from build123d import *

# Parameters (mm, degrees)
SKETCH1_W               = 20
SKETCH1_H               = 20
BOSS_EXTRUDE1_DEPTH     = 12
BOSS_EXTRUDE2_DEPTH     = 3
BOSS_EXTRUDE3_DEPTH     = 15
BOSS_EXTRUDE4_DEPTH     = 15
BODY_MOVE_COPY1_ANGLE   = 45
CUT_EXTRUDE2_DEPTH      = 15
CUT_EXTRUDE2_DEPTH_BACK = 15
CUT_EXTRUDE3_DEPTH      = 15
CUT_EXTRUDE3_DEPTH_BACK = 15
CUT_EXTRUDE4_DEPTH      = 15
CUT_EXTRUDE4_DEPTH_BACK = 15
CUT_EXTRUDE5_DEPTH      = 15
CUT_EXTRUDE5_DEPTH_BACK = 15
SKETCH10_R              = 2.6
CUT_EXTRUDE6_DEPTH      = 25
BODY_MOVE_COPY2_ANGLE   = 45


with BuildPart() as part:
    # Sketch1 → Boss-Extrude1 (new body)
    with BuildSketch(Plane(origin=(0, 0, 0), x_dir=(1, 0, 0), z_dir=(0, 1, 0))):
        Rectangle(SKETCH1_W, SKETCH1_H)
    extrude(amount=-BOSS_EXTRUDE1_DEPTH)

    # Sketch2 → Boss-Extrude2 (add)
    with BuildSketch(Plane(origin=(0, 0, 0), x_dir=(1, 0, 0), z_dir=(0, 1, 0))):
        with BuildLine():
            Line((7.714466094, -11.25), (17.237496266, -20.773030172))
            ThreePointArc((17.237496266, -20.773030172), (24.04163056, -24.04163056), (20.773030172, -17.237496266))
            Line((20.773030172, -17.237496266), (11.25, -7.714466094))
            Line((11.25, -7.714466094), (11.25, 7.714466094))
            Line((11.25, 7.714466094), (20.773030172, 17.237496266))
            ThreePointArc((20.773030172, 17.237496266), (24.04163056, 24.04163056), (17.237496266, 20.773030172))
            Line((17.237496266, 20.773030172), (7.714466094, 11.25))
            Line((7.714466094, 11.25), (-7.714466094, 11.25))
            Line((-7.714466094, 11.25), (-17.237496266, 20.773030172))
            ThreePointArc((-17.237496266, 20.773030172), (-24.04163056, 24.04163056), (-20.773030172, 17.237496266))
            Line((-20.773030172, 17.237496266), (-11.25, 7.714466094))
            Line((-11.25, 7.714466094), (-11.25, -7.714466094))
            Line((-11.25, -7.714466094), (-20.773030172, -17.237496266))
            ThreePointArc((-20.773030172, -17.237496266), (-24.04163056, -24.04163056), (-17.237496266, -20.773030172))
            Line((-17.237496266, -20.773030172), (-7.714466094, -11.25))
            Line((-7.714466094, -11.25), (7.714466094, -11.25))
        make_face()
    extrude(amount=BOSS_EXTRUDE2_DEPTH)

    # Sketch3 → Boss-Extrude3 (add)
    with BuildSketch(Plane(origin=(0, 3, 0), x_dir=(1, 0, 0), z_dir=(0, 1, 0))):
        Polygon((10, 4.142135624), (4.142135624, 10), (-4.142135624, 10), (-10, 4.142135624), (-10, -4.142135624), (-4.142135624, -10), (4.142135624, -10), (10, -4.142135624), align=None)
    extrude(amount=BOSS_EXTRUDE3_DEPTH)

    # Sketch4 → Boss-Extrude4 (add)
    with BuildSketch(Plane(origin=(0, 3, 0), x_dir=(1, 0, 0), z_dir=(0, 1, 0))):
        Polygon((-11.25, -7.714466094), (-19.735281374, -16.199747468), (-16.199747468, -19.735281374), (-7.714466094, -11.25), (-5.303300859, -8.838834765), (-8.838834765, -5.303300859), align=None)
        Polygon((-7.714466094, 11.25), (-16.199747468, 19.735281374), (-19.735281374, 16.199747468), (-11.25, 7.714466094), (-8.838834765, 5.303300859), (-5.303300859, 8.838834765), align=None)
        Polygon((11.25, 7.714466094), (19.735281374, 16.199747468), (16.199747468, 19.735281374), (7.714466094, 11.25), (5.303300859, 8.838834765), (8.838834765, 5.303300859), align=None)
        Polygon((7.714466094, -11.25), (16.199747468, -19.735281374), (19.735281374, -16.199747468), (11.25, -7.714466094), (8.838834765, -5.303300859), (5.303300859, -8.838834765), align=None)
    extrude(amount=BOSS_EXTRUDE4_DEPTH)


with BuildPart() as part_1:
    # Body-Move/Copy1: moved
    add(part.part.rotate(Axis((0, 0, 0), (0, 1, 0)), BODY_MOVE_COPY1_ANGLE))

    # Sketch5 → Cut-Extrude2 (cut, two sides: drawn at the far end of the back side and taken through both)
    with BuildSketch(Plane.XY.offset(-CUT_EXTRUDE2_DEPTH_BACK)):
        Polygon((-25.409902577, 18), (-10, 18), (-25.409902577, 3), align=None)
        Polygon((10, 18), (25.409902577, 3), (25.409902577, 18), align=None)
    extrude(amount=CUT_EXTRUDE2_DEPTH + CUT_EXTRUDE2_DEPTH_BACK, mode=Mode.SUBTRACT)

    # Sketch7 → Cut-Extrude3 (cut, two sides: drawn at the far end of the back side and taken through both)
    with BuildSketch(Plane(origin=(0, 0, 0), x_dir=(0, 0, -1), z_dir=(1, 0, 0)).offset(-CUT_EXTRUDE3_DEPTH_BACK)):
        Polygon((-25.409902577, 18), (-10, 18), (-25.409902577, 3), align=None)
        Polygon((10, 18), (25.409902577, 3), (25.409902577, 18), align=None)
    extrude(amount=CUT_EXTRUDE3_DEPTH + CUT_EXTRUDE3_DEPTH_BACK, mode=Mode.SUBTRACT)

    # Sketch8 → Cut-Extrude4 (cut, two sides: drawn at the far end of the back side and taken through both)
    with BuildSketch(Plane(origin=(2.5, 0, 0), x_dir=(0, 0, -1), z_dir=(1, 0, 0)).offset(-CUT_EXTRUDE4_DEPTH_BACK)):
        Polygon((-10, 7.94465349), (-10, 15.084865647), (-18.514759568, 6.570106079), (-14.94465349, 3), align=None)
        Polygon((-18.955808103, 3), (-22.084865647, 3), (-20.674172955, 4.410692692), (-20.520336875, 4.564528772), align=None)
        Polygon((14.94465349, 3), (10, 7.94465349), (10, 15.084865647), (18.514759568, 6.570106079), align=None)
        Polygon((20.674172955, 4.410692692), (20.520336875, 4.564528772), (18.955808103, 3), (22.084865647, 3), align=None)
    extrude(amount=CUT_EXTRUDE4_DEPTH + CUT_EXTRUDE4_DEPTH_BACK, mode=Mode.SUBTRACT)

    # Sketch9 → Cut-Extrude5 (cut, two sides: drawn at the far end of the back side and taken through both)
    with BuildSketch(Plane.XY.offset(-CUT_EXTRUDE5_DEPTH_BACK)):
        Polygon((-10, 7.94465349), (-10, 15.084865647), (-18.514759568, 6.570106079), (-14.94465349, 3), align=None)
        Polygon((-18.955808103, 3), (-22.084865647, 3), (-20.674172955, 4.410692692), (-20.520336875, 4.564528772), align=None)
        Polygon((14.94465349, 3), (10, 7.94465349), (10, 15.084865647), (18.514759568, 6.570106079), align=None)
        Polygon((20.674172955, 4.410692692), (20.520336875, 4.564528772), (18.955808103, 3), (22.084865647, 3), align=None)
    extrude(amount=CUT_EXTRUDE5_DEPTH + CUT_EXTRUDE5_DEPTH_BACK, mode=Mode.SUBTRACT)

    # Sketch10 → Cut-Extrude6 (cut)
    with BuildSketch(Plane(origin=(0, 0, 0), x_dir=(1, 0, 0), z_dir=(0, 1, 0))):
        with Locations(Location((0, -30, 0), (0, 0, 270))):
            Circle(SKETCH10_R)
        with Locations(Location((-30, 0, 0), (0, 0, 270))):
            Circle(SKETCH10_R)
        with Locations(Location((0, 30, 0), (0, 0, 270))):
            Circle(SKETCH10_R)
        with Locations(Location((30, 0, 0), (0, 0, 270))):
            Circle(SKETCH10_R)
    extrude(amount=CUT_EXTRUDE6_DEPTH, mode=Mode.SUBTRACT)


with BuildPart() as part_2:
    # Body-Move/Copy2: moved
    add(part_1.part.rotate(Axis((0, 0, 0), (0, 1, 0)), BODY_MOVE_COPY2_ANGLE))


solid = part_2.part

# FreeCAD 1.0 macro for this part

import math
import FreeCAD as App
import Part
import Sketcher
from FreeCAD import Vector


def add_polygon(sketch, points):
    """Adds a closed chain of lines whose ends are joined by coincident constraints."""
    first, n = sketch.GeometryCount, len(points)
    for a, b in zip(points, points[1:] + points[:1]):
        sketch.addGeometry(Part.LineSegment(App.Vector(*a, 0), App.Vector(*b, 0)), False)
    for i in range(n):
        sketch.addConstraint(Sketcher.Constraint("Coincident", first + i, 2, first + (i + 1) % n, 1))

doc = App.newDocument("Part")
body = doc.addObject("PartDesign::Body", "Body")

sketch1 = body.newObject("Sketcher::SketchObject", "Sketch")
sketch1.AttachmentSupport = (doc.getObject("XZ_Plane"), [""])
sketch1.MapMode = "FlatFace"
add_polygon(sketch1, [(-10, -10), (-10, 10), (10, 10), (10, -10)])
sketch1.addConstraint(Sketcher.Constraint("Vertical", 0))
sketch1.addConstraint(Sketcher.Constraint("Horizontal", 1))
sketch1.addConstraint(Sketcher.Constraint("Vertical", 2))
sketch1.addConstraint(Sketcher.Constraint("Horizontal", 3))
sketch1.addConstraint(Sketcher.Constraint("Symmetric", 0, 2, 2, 2, -1, 1))
sketch1.addConstraint(Sketcher.Constraint("Equal", 3, 0))
sketch1.addConstraint(Sketcher.Constraint("DistanceX", 1, 1, 1, 2, 20.0))
pad1 = body.newObject("PartDesign::Pad", "Pad")
pad1.Profile = sketch1
pad1.Length = 12

sketch2 = body.newObject("Sketcher::SketchObject", "Sketch001")
sketch2.AttachmentSupport = (doc.getObject("XZ_Plane"), [""])
sketch2.MapMode = "FlatFace"
sketch2.addGeometry(Part.LineSegment(Vector(7.7, 11.2, 0), Vector(17.2, 20.8, 0)), False)
sketch2.addGeometry(Part.ArcOfCircle(Part.Circle(Vector(21.2, 21.2, 0), Vector(0, 0, 1), 4), math.radians(-96), math.radians(186)), False)
sketch2.addGeometry(Part.LineSegment(Vector(20.8, 17.2, 0), Vector(11.2, 7.7, 0)), False)
sketch2.addGeometry(Part.LineSegment(Vector(11.2, 7.7, 0), Vector(11.2, -7.7, 0)), False)
sketch2.addGeometry(Part.LineSegment(Vector(11.2, -7.7, 0), Vector(20.8, -17.2, 0)), False)
sketch2.addGeometry(Part.ArcOfCircle(Part.Circle(Vector(21.2, -21.2, 0), Vector(0, 0, 1), 4), math.radians(174), math.radians(456)), False)
sketch2.addGeometry(Part.LineSegment(Vector(17.2, -20.8, 0), Vector(7.7, -11.2, 0)), False)
sketch2.addGeometry(Part.LineSegment(Vector(7.7, -11.2, 0), Vector(-7.7, -11.2, 0)), False)
sketch2.addGeometry(Part.LineSegment(Vector(-7.7, -11.2, 0), Vector(-17.2, -20.8, 0)), False)
sketch2.addGeometry(Part.ArcOfCircle(Part.Circle(Vector(-21.2, -21.2, 0), Vector(0, 0, 1), 4), math.radians(84), math.radians(366)), False)
sketch2.addGeometry(Part.LineSegment(Vector(-20.8, -17.2, 0), Vector(-11.2, -7.7, 0)), False)
sketch2.addGeometry(Part.LineSegment(Vector(-11.2, -7.7, 0), Vector(-11.2, 7.7, 0)), False)
sketch2.addGeometry(Part.LineSegment(Vector(-11.2, 7.7, 0), Vector(-20.8, 17.2, 0)), False)
sketch2.addGeometry(Part.ArcOfCircle(Part.Circle(Vector(-21.2, 21.2, 0), Vector(0, 0, 1), 4), math.radians(-6), math.radians(276)), False)
sketch2.addGeometry(Part.LineSegment(Vector(-17.2, 20.8, 0), Vector(-7.7, 11.2, 0)), False)
sketch2.addGeometry(Part.LineSegment(Vector(-7.7, 11.2, 0), Vector(7.7, 11.2, 0)), False)
sketch2.addConstraint(Sketcher.Constraint("Coincident", 0, 2, 1, 2))
sketch2.addConstraint(Sketcher.Constraint("Coincident", 1, 1, 2, 1))
sketch2.addConstraint(Sketcher.Constraint("Coincident", 2, 2, 3, 1))
sketch2.addConstraint(Sketcher.Constraint("Coincident", 3, 2, 4, 1))
sketch2.addConstraint(Sketcher.Constraint("Coincident", 4, 2, 5, 2))
sketch2.addConstraint(Sketcher.Constraint("Coincident", 5, 1, 6, 1))
sketch2.addConstraint(Sketcher.Constraint("Coincident", 6, 2, 7, 1))
sketch2.addConstraint(Sketcher.Constraint("Coincident", 7, 2, 8, 1))
sketch2.addConstraint(Sketcher.Constraint("Coincident", 8, 2, 9, 2))
sketch2.addConstraint(Sketcher.Constraint("Coincident", 9, 1, 10, 1))
sketch2.addConstraint(Sketcher.Constraint("Coincident", 10, 2, 11, 1))
sketch2.addConstraint(Sketcher.Constraint("Coincident", 11, 2, 12, 1))
sketch2.addConstraint(Sketcher.Constraint("Coincident", 12, 2, 13, 2))
sketch2.addConstraint(Sketcher.Constraint("Coincident", 13, 1, 14, 1))
sketch2.addConstraint(Sketcher.Constraint("Coincident", 14, 2, 15, 1))
sketch2.addConstraint(Sketcher.Constraint("Coincident", 15, 2, 0, 1))
sketch2.addConstraint(Sketcher.Constraint("Vertical", 3))
sketch2.addConstraint(Sketcher.Constraint("Horizontal", 7))
sketch2.addConstraint(Sketcher.Constraint("Vertical", 11))
sketch2.addConstraint(Sketcher.Constraint("Horizontal", 15))
sketch2.addConstraint(Sketcher.Constraint("Equal", 1, 5))
sketch2.addConstraint(Sketcher.Constraint("Equal", 5, 9))
sketch2.addConstraint(Sketcher.Constraint("Equal", 9, 13))
sketch2.addConstraint(Sketcher.Constraint("Symmetric", 1, 3, 9, 3, -1, 1))
sketch2.addConstraint(Sketcher.Constraint("Symmetric", 5, 3, 13, 3, -1, 1))
sketch2.addConstraint(Sketcher.Constraint("Symmetric", 2, 2, 10, 2, -1, 1))
sketch2.addConstraint(Sketcher.Constraint("Symmetric", 6, 2, 14, 2, -1, 1))
sketch2.addConstraint(Sketcher.Constraint("Symmetric", 5, 3, 9, 3, -2))
sketch2.addConstraint(Sketcher.Constraint("Parallel", 0, 2))
sketch2.addConstraint(Sketcher.Constraint("Perpendicular", 2, 4))
sketch2.addConstraint(Sketcher.Constraint("Parallel", 4, 6))
sketch2.addConstraint(Sketcher.Constraint("Perpendicular", 6, 8))
sketch2.addConstraint(Sketcher.Constraint("Parallel", 8, 10))
sketch2.addConstraint(Sketcher.Constraint("Perpendicular", 10, 12))
sketch2.addConstraint(Sketcher.Constraint("Parallel", 12, 14))
sketch2.addConstraint(Sketcher.Constraint("Horizontal", 5, 1, 8, 2))
sketch2.addConstraint(Sketcher.Constraint("Horizontal", 4, 2, 9, 1))
sketch2.addConstraint(Sketcher.Constraint("Horizontal", 3, 2, 10, 2))
sketch2.addConstraint(Sketcher.Constraint("Horizontal", 2, 2, 11, 2))
sketch2.addConstraint(Sketcher.Constraint("Horizontal", 0, 2, 13, 1))
sketch2.addConstraint(Sketcher.Constraint("Equal", 15, 3))
sketch2.addConstraint(Sketcher.Constraint("Equal", 0, 2))
sketch2.addConstraint(Sketcher.Constraint("Radius", 1, 4.0))
sketch2.addConstraint(Sketcher.Constraint("DistanceX", 11, 2, 2, 2, 22.5))
sketch2.addConstraint(Sketcher.Constraint("DistanceY", 6, 2, -1, 1, 11.25))
sketch2.addConstraint(Sketcher.Constraint("Distance", 0, 13.467598))
sketch2.addConstraint(Sketcher.Constraint("DistanceX", 13, 3, 0, 2, 38.4507))
pad2 = body.newObject("PartDesign::Pad", "Pad001")
pad2.Profile = sketch2
pad2.Length = 3
pad2.Reversed = True

sketch3 = body.newObject("Sketcher::SketchObject", "Sketch002")
sketch3.AttachmentSupport = (doc.getObject("XZ_Plane"), [""])
sketch3.MapMode = "FlatFace"
sketch3.AttachmentOffset = App.Placement(Vector(0, 0, -3), App.Rotation())
add_polygon(sketch3, [(10, -4), (4, -10), (-4, -10), (-10, -4), (-10, 4), (-4, 10), (4, 10), (10, 4)])
sketch3.addConstraint(Sketcher.Constraint("Horizontal", 1))
sketch3.addConstraint(Sketcher.Constraint("Vertical", 3))
sketch3.addConstraint(Sketcher.Constraint("Horizontal", 5))
sketch3.addConstraint(Sketcher.Constraint("Vertical", 7))
sketch3.addConstraint(Sketcher.Constraint("Symmetric", 0, 2, 4, 2, -1, 1))
sketch3.addConstraint(Sketcher.Constraint("Symmetric", 2, 2, 6, 2, -1, 1))
sketch3.addConstraint(Sketcher.Constraint("Perpendicular", 0, 2))
sketch3.addConstraint(Sketcher.Constraint("Perpendicular", 2, 4))
sketch3.addConstraint(Sketcher.Constraint("Perpendicular", 4, 6))
sketch3.addConstraint(Sketcher.Constraint("Horizontal", 3, 2, 6, 2))
sketch3.addConstraint(Sketcher.Constraint("Vertical", 1, 2, 4, 2))
sketch3.addConstraint(Sketcher.Constraint("Equal", 5, 3))
sketch3.addConstraint(Sketcher.Constraint("DistanceY", 0, 2, -1, 1, 10.0))
sketch3.addConstraint(Sketcher.Constraint("DistanceX", 1, 2, 1, 1, 8.284271))
pad3 = body.newObject("PartDesign::Pad", "Pad002")
pad3.Profile = sketch3
pad3.Length = 15
pad3.Reversed = True

sketch4 = body.newObject("Sketcher::SketchObject", "Sketch003")
sketch4.AttachmentSupport = (doc.getObject("XZ_Plane"), [""])
sketch4.MapMode = "FlatFace"
sketch4.AttachmentOffset = App.Placement(Vector(0, 0, -3), App.Rotation())
add_polygon(sketch4, [(-20, 16), (-16, 20), (-5, 9), (-9, 5)])
add_polygon(sketch4, [(-16, -20), (-20, -16), (-9, -5), (-5, -9)])
add_polygon(sketch4, [(20, -16), (16, -20), (5, -9), (9, -5)])
add_polygon(sketch4, [(16, 20), (20, 16), (9, 5), (5, 9)])
sketch4.addConstraint(Sketcher.Constraint("Symmetric", 0, 2, 8, 2, -1, 1))
sketch4.addConstraint(Sketcher.Constraint("Symmetric", 1, 2, 9, 2, -1, 1))
sketch4.addConstraint(Sketcher.Constraint("Symmetric", 2, 2, 10, 2, -1, 1))
sketch4.addConstraint(Sketcher.Constraint("Symmetric", 3, 2, 11, 2, -1, 1))
sketch4.addConstraint(Sketcher.Constraint("Symmetric", 4, 2, 12, 2, -1, 1))
sketch4.addConstraint(Sketcher.Constraint("Symmetric", 5, 2, 13, 2, -1, 1))
sketch4.addConstraint(Sketcher.Constraint("Symmetric", 6, 2, 14, 2, -1, 1))
sketch4.addConstraint(Sketcher.Constraint("Symmetric", 7, 2, 15, 2, -1, 1))
sketch4.addConstraint(Sketcher.Constraint("Symmetric", 7, 2, 8, 2, -2))
sketch4.addConstraint(Sketcher.Constraint("Symmetric", 6, 2, 9, 2, -2))
sketch4.addConstraint(Sketcher.Constraint("Symmetric", 5, 2, 10, 2, -2))
sketch4.addConstraint(Sketcher.Constraint("Symmetric", 4, 2, 11, 2, -2))
sketch4.addConstraint(Sketcher.Constraint("Perpendicular", 0, 1))
sketch4.addConstraint(Sketcher.Constraint("Perpendicular", 1, 2))
sketch4.addConstraint(Sketcher.Constraint("Perpendicular", 2, 3))
sketch4.addConstraint(Sketcher.Constraint("Parallel", 3, 4))
sketch4.addConstraint(Sketcher.Constraint("Distance", 0, 5.0))
sketch4.addConstraint(Sketcher.Constraint("DistanceX", 1, 2, -1, 1, 5.303301))
sketch4.addConstraint(Sketcher.Constraint("DistanceY", -1, 1, 2, 2, 5.303301))
sketch4.addConstraint(Sketcher.Constraint("DistanceY", -1, 1, 0, 2, 19.735281))
pad4 = body.newObject("PartDesign::Pad", "Pad003")
pad4.Profile = sketch4
pad4.Length = 15
pad4.Reversed = True
body2 = doc.addObject("PartDesign::Body", "Body001")
doc.recompute()

body.Placement = App.Placement(Vector(0, 0, 0), App.Rotation(Vector(0, 1, 0), 45))
boolean = body2.newObject("PartDesign::Boolean", "Boolean")
boolean.Type = "Fuse"
boolean.addObjects([body])

sketch5 = body2.newObject("Sketcher::SketchObject", "Sketch004")
sketch5.AttachmentSupport = (doc.getObject("XY_Plane001"), [""])
sketch5.MapMode = "FlatFace"
add_polygon(sketch5, [(-10, 18), (-25, 18), (-25, 3)])
add_polygon(sketch5, [(10, 18), (25, 3), (25, 18)])
sketch5.addConstraint(Sketcher.Constraint("Horizontal", 0))
sketch5.addConstraint(Sketcher.Constraint("Vertical", 1))
sketch5.addConstraint(Sketcher.Constraint("Vertical", 4))
sketch5.addConstraint(Sketcher.Constraint("Horizontal", 5))
sketch5.addConstraint(Sketcher.Constraint("Symmetric", 1, 2, 3, 2, -2))
sketch5.addConstraint(Sketcher.Constraint("Symmetric", 2, 2, 5, 2, -2))
sketch5.addConstraint(Sketcher.Constraint("DistanceY", 1, 2, 1, 1, 15.0))
sketch5.addConstraint(Sketcher.Constraint("DistanceY", -1, 1, 0, 2, 18.0))
sketch5.addConstraint(Sketcher.Constraint("DistanceX", 2, 2, -1, 1, 10.0))
sketch5.addConstraint(Sketcher.Constraint("Distance", 2, 21.505002))
pocket1 = body2.newObject("PartDesign::Pocket", "Pocket")
pocket1.Profile = sketch5
pocket1.Type = "ThroughAll"
pocket1.Midplane = True

sketch6 = body2.newObject("Sketcher::SketchObject", "Sketch005")
sketch6.AttachmentSupport = (doc.getObject("YZ_Plane001"), [""])
sketch6.MapMode = "FlatFace"
add_polygon(sketch6, [(18, 10), (18, 25), (3, 25)])
add_polygon(sketch6, [(18, -10), (3, -25), (18, -25)])
sketch6.addConstraint(Sketcher.Constraint("Vertical", 0))
sketch6.addConstraint(Sketcher.Constraint("Horizontal", 1))
sketch6.addConstraint(Sketcher.Constraint("Horizontal", 4))
sketch6.addConstraint(Sketcher.Constraint("Vertical", 5))
sketch6.addConstraint(Sketcher.Constraint("Symmetric", 1, 2, 3, 2, -1))
sketch6.addConstraint(Sketcher.Constraint("Symmetric", 2, 2, 5, 2, -1))
sketch6.addConstraint(Sketcher.Constraint("DistanceX", 1, 2, 1, 1, 15.0))
sketch6.addConstraint(Sketcher.Constraint("DistanceX", -1, 1, 0, 2, 18.0))
sketch6.addConstraint(Sketcher.Constraint("DistanceY", -1, 1, 2, 2, 10.0))
sketch6.addConstraint(Sketcher.Constraint("Distance", 2, 21.505002))
pocket2 = body2.newObject("PartDesign::Pocket", "Pocket001")
pocket2.Profile = sketch6
pocket2.Type = "ThroughAll"
pocket2.Midplane = True

sketch7 = body2.newObject("Sketcher::SketchObject", "Sketch006")
sketch7.AttachmentSupport = (doc.getObject("YZ_Plane001"), [""])
sketch7.MapMode = "FlatFace"
sketch7.AttachmentOffset = App.Placement(Vector(0, 0, 2.5), App.Rotation())
add_polygon(sketch7, [(7.9, 10), (15.1, 10), (6.6, 18.5), (3, 14.9)])
add_polygon(sketch7, [(3, 22.1), (3, 19), (4.6, 20.5)])
add_polygon(sketch7, [(7.9, -10), (3, -14.9), (6.6, -18.5), (15.1, -10)])
add_polygon(sketch7, [(4.6, -20.5), (3, -19), (3, -22.1)])
sketch7.addConstraint(Sketcher.Constraint("Horizontal", 0))
sketch7.addConstraint(Sketcher.Constraint("Vertical", 4))
sketch7.addConstraint(Sketcher.Constraint("Horizontal", 10))
sketch7.addConstraint(Sketcher.Constraint("Vertical", 12))
sketch7.addConstraint(Sketcher.Constraint("Symmetric", 2, 2, 7, 2, -1))
sketch7.addConstraint(Sketcher.Constraint("Symmetric", 1, 2, 8, 2, -1))
sketch7.addConstraint(Sketcher.Constraint("Symmetric", 0, 2, 9, 2, -1))
sketch7.addConstraint(Sketcher.Constraint("Symmetric", 4, 2, 11, 2, -1))
sketch7.addConstraint(Sketcher.Constraint("Symmetric", 5, 2, 13, 2, -1))
sketch7.addConstraint(Sketcher.Constraint("Perpendicular", 1, 2))
sketch7.addConstraint(Sketcher.Constraint("Perpendicular", 2, 3))
sketch7.addConstraint(Sketcher.Constraint("Perpendicular", 3, 5))
sketch7.addConstraint(Sketcher.Constraint("Perpendicular", 5, 6))
sketch7.addConstraint(Sketcher.Constraint("Perpendicular", 6, 7))
sketch7.addConstraint(Sketcher.Constraint("Perpendicular", 7, 8))
sketch7.addConstraint(Sketcher.Constraint("Perpendicular", 11, 13))
sketch7.addConstraint(Sketcher.Constraint("Vertical", 2, 2, 4, 2))
sketch7.addConstraint(Sketcher.Constraint("DistanceY", -1, 1, 0, 2, 10.0))
sketch7.addConstraint(Sketcher.Constraint("DistanceX", -1, 1, 2, 2, 3.0))
sketch7.addConstraint(Sketcher.Constraint("Distance", 1, 12.041688))
sketch7.addConstraint(Sketcher.Constraint("DistanceX", 0, 1, 0, 2, 7.140212))
sketch7.addConstraint(Sketcher.Constraint("DistanceY", 4, 2, 4, 1, 3.129058))
sketch7.addConstraint(Sketcher.Constraint("DistanceY", -1, 1, 4, 2, 18.955808))
pocket3 = body2.newObject("PartDesign::Pocket", "Pocket002")
pocket3.Profile = sketch7
pocket3.Type = "ThroughAll"
pocket3.Midplane = True

sketch8 = body2.newObject("Sketcher::SketchObject", "Sketch007")
sketch8.AttachmentSupport = (doc.getObject("XY_Plane001"), [""])
sketch8.MapMode = "FlatFace"
add_polygon(sketch8, [(-10, 7.9), (-10, 15.1), (-18.5, 6.6), (-14.9, 3)])
add_polygon(sketch8, [(-22.1, 3), (-19, 3), (-20.5, 4.6)])
add_polygon(sketch8, [(10, 7.9), (14.9, 3), (18.5, 6.6), (10, 15.1)])
add_polygon(sketch8, [(20.5, 4.6), (19, 3), (22.1, 3)])
sketch8.addConstraint(Sketcher.Constraint("Vertical", 0))
sketch8.addConstraint(Sketcher.Constraint("Horizontal", 4))
sketch8.addConstraint(Sketcher.Constraint("Vertical", 10))
sketch8.addConstraint(Sketcher.Constraint("Horizontal", 12))
sketch8.addConstraint(Sketcher.Constraint("Symmetric", 2, 2, 7, 2, -2))
sketch8.addConstraint(Sketcher.Constraint("Symmetric", 1, 2, 8, 2, -2))
sketch8.addConstraint(Sketcher.Constraint("Symmetric", 0, 2, 9, 2, -2))
sketch8.addConstraint(Sketcher.Constraint("Symmetric", 4, 2, 11, 2, -2))
sketch8.addConstraint(Sketcher.Constraint("Symmetric", 5, 2, 13, 2, -2))
sketch8.addConstraint(Sketcher.Constraint("Perpendicular", 1, 2))
sketch8.addConstraint(Sketcher.Constraint("Perpendicular", 2, 3))
sketch8.addConstraint(Sketcher.Constraint("Perpendicular", 3, 5))
sketch8.addConstraint(Sketcher.Constraint("Perpendicular", 5, 6))
sketch8.addConstraint(Sketcher.Constraint("Perpendicular", 6, 7))
sketch8.addConstraint(Sketcher.Constraint("Perpendicular", 7, 8))
sketch8.addConstraint(Sketcher.Constraint("Perpendicular", 11, 13))
sketch8.addConstraint(Sketcher.Constraint("Horizontal", 2, 2, 4, 2))
sketch8.addConstraint(Sketcher.Constraint("DistanceX", 0, 2, -1, 1, 10.0))
sketch8.addConstraint(Sketcher.Constraint("DistanceY", -1, 1, 2, 2, 3.0))
sketch8.addConstraint(Sketcher.Constraint("Distance", 1, 12.041688))
sketch8.addConstraint(Sketcher.Constraint("DistanceX", 4, 1, 4, 2, 3.129058))
sketch8.addConstraint(Sketcher.Constraint("DistanceY", 0, 1, 0, 2, 7.140212))
sketch8.addConstraint(Sketcher.Constraint("DistanceX", 4, 2, -1, 1, 18.955808))
pocket4 = body2.newObject("PartDesign::Pocket", "Pocket003")
pocket4.Profile = sketch8
pocket4.Type = "ThroughAll"
pocket4.Midplane = True

sketch9 = body2.newObject("Sketcher::SketchObject", "Sketch008")
sketch9.AttachmentSupport = (doc.getObject("XZ_Plane001"), [""])
sketch9.MapMode = "FlatFace"
sketch9.addGeometry(Part.Circle(Vector(0, 30, 0), Vector(0, 0, 1), 2.6), False)
sketch9.addGeometry(Part.Circle(Vector(-30, 0, 0), Vector(0, 0, 1), 2.6), False)
sketch9.addGeometry(Part.Circle(Vector(0, -30, 0), Vector(0, 0, 1), 2.6), False)
sketch9.addGeometry(Part.Circle(Vector(30, 0, 0), Vector(0, 0, 1), 2.6), False)
sketch9.addConstraint(Sketcher.Constraint("Equal", 0, 1))
sketch9.addConstraint(Sketcher.Constraint("Equal", 1, 2))
sketch9.addConstraint(Sketcher.Constraint("Equal", 2, 3))
sketch9.addConstraint(Sketcher.Constraint("Symmetric", 0, 3, 2, 3, -1, 1))
sketch9.addConstraint(Sketcher.Constraint("Symmetric", 1, 3, 3, 3, -1, 1))
sketch9.addConstraint(Sketcher.Constraint("PointOnObject", 0, 3, -2))
sketch9.addConstraint(Sketcher.Constraint("PointOnObject", 1, 3, -1))
sketch9.addConstraint(Sketcher.Constraint("Diameter", 0, 5.2))
sketch9.addConstraint(Sketcher.Constraint("DistanceY", -1, 1, 0, 3, 30.0))
sketch9.addConstraint(Sketcher.Constraint("DistanceX", 1, 3, -1, 1, 30.0))
pocket5 = body2.newObject("PartDesign::Pocket", "Pocket004")
pocket5.Profile = sketch9
pocket5.Length = 25
body3 = doc.addObject("PartDesign::Body", "Body002")
doc.recompute()

body2.Placement = App.Placement(Vector(0, 0, 0), App.Rotation(Vector(0, 1, 0), 45))
boolean2 = body3.newObject("PartDesign::Boolean", "Boolean001")
boolean2.Type = "Fuse"
boolean2.addObjects([body2])

doc.recompute()
